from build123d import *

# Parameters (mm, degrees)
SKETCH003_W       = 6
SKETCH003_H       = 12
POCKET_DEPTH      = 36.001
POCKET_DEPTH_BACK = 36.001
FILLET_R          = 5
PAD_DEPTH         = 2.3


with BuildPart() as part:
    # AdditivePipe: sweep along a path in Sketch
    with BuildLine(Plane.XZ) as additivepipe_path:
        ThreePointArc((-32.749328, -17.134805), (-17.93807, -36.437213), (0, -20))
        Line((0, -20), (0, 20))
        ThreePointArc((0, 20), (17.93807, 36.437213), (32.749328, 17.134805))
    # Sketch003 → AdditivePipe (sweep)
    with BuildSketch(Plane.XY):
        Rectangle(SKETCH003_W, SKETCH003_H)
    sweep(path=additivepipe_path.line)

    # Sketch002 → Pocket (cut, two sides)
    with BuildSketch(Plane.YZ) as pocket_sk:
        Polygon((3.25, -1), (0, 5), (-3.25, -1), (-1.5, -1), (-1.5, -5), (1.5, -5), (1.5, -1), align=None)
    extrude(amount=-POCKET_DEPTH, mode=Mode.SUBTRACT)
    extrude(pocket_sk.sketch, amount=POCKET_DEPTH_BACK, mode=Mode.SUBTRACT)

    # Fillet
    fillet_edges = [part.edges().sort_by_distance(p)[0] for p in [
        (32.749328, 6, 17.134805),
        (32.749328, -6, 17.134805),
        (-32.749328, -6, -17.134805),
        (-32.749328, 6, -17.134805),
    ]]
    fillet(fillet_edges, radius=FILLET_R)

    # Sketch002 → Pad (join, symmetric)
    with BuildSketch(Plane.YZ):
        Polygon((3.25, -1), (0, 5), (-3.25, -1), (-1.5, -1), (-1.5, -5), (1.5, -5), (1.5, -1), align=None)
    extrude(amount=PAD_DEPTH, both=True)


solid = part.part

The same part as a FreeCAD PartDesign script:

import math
import FreeCAD as App
import Part
import Sketcher
Q = App.Units.Quantity


def edges_at(feature, points):
    """Names of the edges that pass closest to the given points."""
    edges = feature.Shape.Edges
    near = lambda p: min(range(len(edges)), key=lambda i: edges[i].distToShape(Part.Vertex(*p))[0])
    return sorted({f"Edge{near(p) + 1}" for p in points})

doc = App.newDocument("Part")
body = doc.addObject("PartDesign::Body", "Body")

# Sketch on XY plane
sketch1 = body.newObject("Sketcher::SketchObject", "Sketch")
sketch1.AttachmentSupport = (doc.getObject("XY_Plane"), [""])
sketch1.MapMode = "FlatFace"
sketch1.addGeometry(Part.LineSegment(App.Vector(-3, 6, 0), App.Vector(-3, -6, 0)), False)
sketch1.addGeometry(Part.LineSegment(App.Vector(-3, -6, 0), App.Vector(3, -6, 0)), False)
sketch1.addGeometry(Part.LineSegment(App.Vector(3, -6, 0), App.Vector(3, 6, 0)), False)
sketch1.addGeometry(Part.LineSegment(App.Vector(3, 6, 0), App.Vector(-3, 6, 0)), False)
sketch1.addConstraint(Sketcher.Constraint("Coincident", 0, 2, 1, 1))
sketch1.addConstraint(Sketcher.Constraint("Coincident", 1, 2, 2, 1))
sketch1.addConstraint(Sketcher.Constraint("Coincident", 2, 2, 3, 1))
sketch1.addConstraint(Sketcher.Constraint("Coincident", 3, 2, 0, 1))
sketch1.addConstraint(Sketcher.Constraint("Vertical", 0))
sketch1.addConstraint(Sketcher.Constraint("Horizontal", 1))
sketch1.addConstraint(Sketcher.Constraint("Vertical", 2))
sketch1.addConstraint(Sketcher.Constraint("Horizontal", 3))
sketch1.addConstraint(Sketcher.Constraint("Symmetric", 0, 2, 2, 2, -1, 1))
sketch1.addConstraint(Sketcher.Constraint("DistanceX", 1, 1, 1, 2, Q("6 mm")))
sketch1.addConstraint(Sketcher.Constraint("DistanceY", 0, 2, 0, 1, Q("12 mm")))

# Sketch on XZ plane
sketch2 = body.newObject("Sketcher::SketchObject", "Sketch001")
sketch2.AttachmentSupport = (doc.getObject("XZ_Plane"), [""])
sketch2.MapMode = "FlatFace"
sketch2.addGeometry(Part.ArcOfCircle(Part.Circle(App.Vector(-16.5, -20, 0), App.Vector(0, 0, 1), 16.5), math.radians(169.999998), math.radians(360.000001)), False)
sketch2.addGeometry(Part.LineSegment(App.Vector(0, -20, 0), App.Vector(0, 20, 0)), False)
sketch2.addGeometry(Part.ArcOfCircle(Part.Circle(App.Vector(16.5, 20, 0), App.Vector(0, 0, 1), 16.5), math.radians(-10.000002), math.radians(180.000001)), False)
sketch2.addConstraint(Sketcher.Constraint("Tangent", 0, 2, 1, 1))
sketch2.addConstraint(Sketcher.Constraint("Tangent", 1, 2, 2, 2))
sketch2.addConstraint(Sketcher.Constraint("Vertical", 1))
sketch2.addConstraint(Sketcher.Constraint("Equal", 0, 2))
sketch2.addConstraint(Sketcher.Constraint("Symmetric", 0, 3, 2, 3, -1, 1))
sketch2.addConstraint(Sketcher.Constraint("Radius", 0, Q("16.5 mm")))
sketch2.addConstraint(Sketcher.Constraint("DistanceY", 1, 1, 1, 2, Q("40 mm")))
sketch2.addConstraint(Sketcher.Constraint("DistanceX", 0, 1, -1, 1, Q("32.749328 mm")))
sketch2.addConstraint(Sketcher.Constraint("DistanceX", -1, 1, 2, 1, Q("32.749328 mm")))
doc.recompute()

additivepipe = body.newObject("PartDesign::AdditivePipe", "AdditivePipe")
additivepipe.Profile = sketch1
additivepipe.Spine = (sketch2, ["Edge1", "Edge2", "Edge3"])

# Sketch on YZ plane
sketch3 = body.newObject("Sketcher::SketchObject", "Sketch002")
sketch3.AttachmentSupport = (doc.getObject("YZ_Plane"), [""])
sketch3.MapMode = "FlatFace"
sketch3.addGeometry(Part.LineSegment(App.Vector(3.25, -1, 0), App.Vector(0, 5, 0)), False)
sketch3.addGeometry(Part.LineSegment(App.Vector(0, 5, 0), App.Vector(-3.25, -1, 0)), False)
sketch3.addGeometry(Part.LineSegment(App.Vector(-3.25, -1, 0), App.Vector(-1.5, -1, 0)), False)
sketch3.addGeometry(Part.LineSegment(App.Vector(-1.5, -1, 0), App.Vector(-1.5, -5, 0)), False)
sketch3.addGeometry(Part.LineSegment(App.Vector(-1.5, -5, 0), App.Vector(1.5, -5, 0)), False)
sketch3.addGeometry(Part.LineSegment(App.Vector(1.5, -5, 0), App.Vector(1.5, -1, 0)), False)
sketch3.addGeometry(Part.LineSegment(App.Vector(1.5, -1, 0), App.Vector(3.25, -1, 0)), False)
sketch3.addConstraint(Sketcher.Constraint("Coincident", 0, 2, 1, 1))
sketch3.addConstraint(Sketcher.Constraint("Coincident", 1, 2, 2, 1))
sketch3.addConstraint(Sketcher.Constraint("Coincident", 2, 2, 3, 1))
sketch3.addConstraint(Sketcher.Constraint("Coincident", 3, 2, 4, 1))
sketch3.addConstraint(Sketcher.Constraint("Coincident", 4, 2, 5, 1))
sketch3.addConstraint(Sketcher.Constraint("Coincident", 5, 2, 6, 1))
sketch3.addConstraint(Sketcher.Constraint("Coincident", 6, 2, 0, 1))
sketch3.addConstraint(Sketcher.Constraint("Horizontal", 2))
sketch3.addConstraint(Sketcher.Constraint("Vertical", 3))
sketch3.addConstraint(Sketcher.Constraint("Horizontal", 4))
sketch3.addConstraint(Sketcher.Constraint("Vertical", 5))
sketch3.addConstraint(Sketcher.Constraint("Horizontal", 6))
sketch3.addConstraint(Sketcher.Constraint("Symmetric", 2, 2, 5, 2, -2))
sketch3.addConstraint(Sketcher.Constraint("PointOnObject", 0, 2, -2))
sketch3.addConstraint(Sketcher.Constraint("Equal", 2, 6))
sketch3.addConstraint(Sketcher.Constraint("DistanceX", 4, 1, 4, 2, Q("3 mm")))
sketch3.addConstraint(Sketcher.Constraint("DistanceY", 3, 2, 3, 1, Q("4 mm")))
sketch3.addConstraint(Sketcher.Constraint("DistanceY", -1, 1, 0, 2, Q("5 mm")))
sketch3.addConstraint(Sketcher.Constraint("DistanceY", 1, 2, -1, 1, Q("1 mm")))
sketch3.addConstraint(Sketcher.Constraint("DistanceX", 2, 1, 2, 2, Q("1.75 mm")))
pocket1 = body.newObject("PartDesign::Pocket", "Pocket")
pocket1.Profile = sketch3
pocket1.Type = "ThroughAll"
pocket1.Midplane = True
doc.recompute()

fillet = body.newObject("PartDesign::Fillet", "Fillet")
fillet.Base = (pocket1, edges_at(pocket1, [
    (32.749, 6, 17.135),
    (32.749, -6, 17.135),
    (-32.749, -6, -17.135),
    (-32.749, 6, -17.135),
]))
fillet.Radius = 5

# Sketch on YZ plane
sketch4 = body.newObject("Sketcher::SketchObject", "Sketch003")
sketch4.AttachmentSupport = (doc.getObject("YZ_Plane"), [""])
sketch4.MapMode = "FlatFace"
sketch4.addGeometry(Part.LineSegment(App.Vector(3.25, -1, 0), App.Vector(0, 5, 0)), False)
sketch4.addGeometry(Part.LineSegment(App.Vector(0, 5, 0), App.Vector(-3.25, -1, 0)), False)
sketch4.addGeometry(Part.LineSegment(App.Vector(-3.25, -1, 0), App.Vector(-1.5, -1, 0)), False)
sketch4.addGeometry(Part.LineSegment(App.Vector(-1.5, -1, 0), App.Vector(-1.5, -5, 0)), False)
sketch4.addGeometry(Part.LineSegment(App.Vector(-1.5, -5, 0), App.Vector(1.5, -5, 0)), False)
sketch4.addGeometry(Part.LineSegment(App.Vector(1.5, -5, 0), App.Vector(1.5, -1, 0)), False)
sketch4.addGeometry(Part.LineSegment(App.Vector(1.5, -1, 0), App.Vector(3.25, -1, 0)), False)
sketch4.addConstraint(Sketcher.Constraint("Coincident", 0, 2, 1, 1))
sketch4.addConstraint(Sketcher.Constraint("Coincident", 1, 2, 2, 1))
sketch4.addConstraint(Sketcher.Constraint("Coincident", 2, 2, 3, 1))
sketch4.addConstraint(Sketcher.Constraint("Coincident", 3, 2, 4, 1))
sketch4.addConstraint(Sketcher.Constraint("Coincident", 4, 2, 5, 1))
sketch4.addConstraint(Sketcher.Constraint("Coincident", 5, 2, 6, 1))
sketch4.addConstraint(Sketcher.Constraint("Coincident", 6, 2, 0, 1))
sketch4.addConstraint(Sketcher.Constraint("Horizontal", 2))
sketch4.addConstraint(Sketcher.Constraint("Vertical", 3))
sketch4.addConstraint(Sketcher.Constraint("Horizontal", 4))
sketch4.addConstraint(Sketcher.Constraint("Vertical", 5))
sketch4.addConstraint(Sketcher.Constraint("Horizontal", 6))
sketch4.addConstraint(Sketcher.Constraint("Symmetric", 2, 2, 5, 2, -2))
sketch4.addConstraint(Sketcher.Constraint("PointOnObject", 0, 2, -2))
sketch4.addConstraint(Sketcher.Constraint("Equal", 2, 6))
sketch4.addConstraint(Sketcher.Constraint("DistanceX", 4, 1, 4, 2, Q("3 mm")))
sketch4.addConstraint(Sketcher.Constraint("DistanceY", 3, 2, 3, 1, Q("4 mm")))
sketch4.addConstraint(Sketcher.Constraint("DistanceY", -1, 1, 0, 2, Q("5 mm")))
sketch4.addConstraint(Sketcher.Constraint("DistanceY", 1, 2, -1, 1, Q("1 mm")))
sketch4.addConstraint(Sketcher.Constraint("DistanceX", 2, 1, 2, 2, Q("1.75 mm")))
pad1 = body.newObject("PartDesign::Pad", "Pad")
pad1.Profile = sketch4
pad1.Length = 4.6
pad1.Midplane = True

doc.recompute()
